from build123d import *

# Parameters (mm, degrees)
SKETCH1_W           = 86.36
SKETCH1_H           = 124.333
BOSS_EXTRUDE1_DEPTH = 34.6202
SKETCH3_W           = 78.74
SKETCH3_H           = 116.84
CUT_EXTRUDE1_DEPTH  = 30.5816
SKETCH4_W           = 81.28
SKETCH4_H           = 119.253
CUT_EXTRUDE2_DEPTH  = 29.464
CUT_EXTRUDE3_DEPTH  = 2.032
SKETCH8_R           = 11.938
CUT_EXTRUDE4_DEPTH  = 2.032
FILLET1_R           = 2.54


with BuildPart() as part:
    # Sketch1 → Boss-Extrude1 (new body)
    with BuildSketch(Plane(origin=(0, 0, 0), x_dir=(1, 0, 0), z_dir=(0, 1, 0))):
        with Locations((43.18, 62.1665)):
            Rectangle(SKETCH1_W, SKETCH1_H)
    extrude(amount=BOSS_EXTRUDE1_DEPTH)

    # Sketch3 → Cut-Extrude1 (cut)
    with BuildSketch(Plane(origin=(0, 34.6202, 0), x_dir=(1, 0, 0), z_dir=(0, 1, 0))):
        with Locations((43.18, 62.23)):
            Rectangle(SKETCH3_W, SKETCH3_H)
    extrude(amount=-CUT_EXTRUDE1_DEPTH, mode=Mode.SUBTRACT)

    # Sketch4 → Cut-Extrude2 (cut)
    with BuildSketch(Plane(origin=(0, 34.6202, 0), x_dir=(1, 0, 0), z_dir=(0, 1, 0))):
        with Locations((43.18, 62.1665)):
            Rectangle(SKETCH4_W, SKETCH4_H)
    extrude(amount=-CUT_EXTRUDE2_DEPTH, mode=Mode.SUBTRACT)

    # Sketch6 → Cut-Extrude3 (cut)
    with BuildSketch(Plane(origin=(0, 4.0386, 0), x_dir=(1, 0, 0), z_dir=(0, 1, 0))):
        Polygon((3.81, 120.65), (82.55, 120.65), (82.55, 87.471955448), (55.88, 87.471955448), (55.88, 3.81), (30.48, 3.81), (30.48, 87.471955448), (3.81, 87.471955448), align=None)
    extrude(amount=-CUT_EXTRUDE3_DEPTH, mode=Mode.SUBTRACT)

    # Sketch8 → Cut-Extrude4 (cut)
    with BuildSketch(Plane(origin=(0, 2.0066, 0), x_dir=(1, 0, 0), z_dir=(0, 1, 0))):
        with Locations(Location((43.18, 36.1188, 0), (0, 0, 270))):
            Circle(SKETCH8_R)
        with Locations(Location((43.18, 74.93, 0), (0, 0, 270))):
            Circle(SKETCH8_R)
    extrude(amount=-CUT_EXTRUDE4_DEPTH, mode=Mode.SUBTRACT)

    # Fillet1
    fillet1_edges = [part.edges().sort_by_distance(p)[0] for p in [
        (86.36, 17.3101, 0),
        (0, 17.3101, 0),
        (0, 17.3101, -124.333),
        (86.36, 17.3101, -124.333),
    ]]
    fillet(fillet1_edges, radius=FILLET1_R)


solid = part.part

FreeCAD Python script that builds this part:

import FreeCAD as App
import Part
import Sketcher
Q = App.Units.Quantity


def edges_at(feature, points):
    """Names of the edges that pass closest to the given points."""
    edges = feature.Shape.Edges
    near = lambda p: min(range(len(edges)), key=lambda i: edges[i].distToShape(Part.Vertex(*p))[0])
    return sorted({f"Edge{near(p) + 1}" for p in points})

doc = App.newDocument("Part")
body = doc.addObject("PartDesign::Body", "Body")

# Sketch on XZ plane
sketch1 = body.newObject("Sketcher::SketchObject", "Sketch")
sketch1.AttachmentSupport = (doc.getObject("XZ_Plane"), [""])
sketch1.MapMode = "FlatFace"
sketch1.addGeometry([
    Part.LineSegment(App.Vector(0, -124, 0), App.Vector(0, 0, 0)),
    Part.LineSegment(App.Vector(0, 0, 0), App.Vector(86, 0, 0)),
    Part.LineSegment(App.Vector(86, 0, 0), App.Vector(86, -124, 0)),
    Part.LineSegment(App.Vector(86, -124, 0), App.Vector(0, -124, 0)),
], False)
sketch1.addConstraint([
    Sketcher.Constraint("Coincident", 0, 2, 1, 1),
    Sketcher.Constraint("Coincident", 1, 2, 2, 1),
    Sketcher.Constraint("Coincident", 2, 2, 3, 1),
    Sketcher.Constraint("Coincident", 3, 2, 0, 1),
    Sketcher.Constraint("Vertical", 0),
    Sketcher.Constraint("Horizontal", 1),
    Sketcher.Constraint("Vertical", 2),
    Sketcher.Constraint("Horizontal", 3),
    Sketcher.Constraint("Coincident", 0, 2, -1, 1),
    Sketcher.Constraint("DistanceX", 1, 1, 1, 2, Q("3.4 in")),
    Sketcher.Constraint("DistanceY", 0, 1, 0, 2, Q("4.895 in")),
])
pad1 = body.newObject("PartDesign::Pad", "Pad")
pad1.Profile = sketch1
pad1.Length = Q("1.363 in")
pad1.Reversed = True

# Sketch on XZ plane
sketch2 = body.newObject("Sketcher::SketchObject", "Sketch001")
sketch2.AttachmentSupport = (doc.getObject("XZ_Plane"), [""])
sketch2.MapMode = "FlatFace"
sketch2.AttachmentOffset = App.Placement(App.Vector(0, 0, -1.363 * 25.4), App.Rotation())
sketch2.addGeometry([
    Part.LineSegment(App.Vector(4, -121, 0), App.Vector(4, -4, 0)),
    Part.LineSegment(App.Vector(4, -4, 0), App.Vector(83, -4, 0)),
    Part.LineSegment(App.Vector(83, -4, 0), App.Vector(83, -121, 0)),
    Part.LineSegment(App.Vector(83, -121, 0), App.Vector(4, -121, 0)),
], False)
sketch2.addConstraint([
    Sketcher.Constraint("Coincident", 0, 2, 1, 1),
    Sketcher.Constraint("Coincident", 1, 2, 2, 1),
    Sketcher.Constraint("Coincident", 2, 2, 3, 1),
    Sketcher.Constraint("Coincident", 3, 2, 0, 1),
    Sketcher.Constraint("Vertical", 0),
    Sketcher.Constraint("Horizontal", 1),
    Sketcher.Constraint("Vertical", 2),
    Sketcher.Constraint("Horizontal", 3),
    Sketcher.Constraint("DistanceX", 1, 1, 1, 2, Q("3.1 in")),
    Sketcher.Constraint("DistanceY", 0, 1, 0, 2, Q("4.6 in")),
    Sketcher.Constraint("DistanceX", -1, 1, 0, 2, Q("0.15 in")),
    Sketcher.Constraint("DistanceY", 0, 2, -1, 1, Q("0.15 in")),
])
pocket1 = body.newObject("PartDesign::Pocket", "Pocket")
pocket1.Profile = sketch2
pocket1.Length = Q("1.204 in")
pocket1.Reversed = True

# Sketch on XZ plane
sketch3 = body.newObject("Sketcher::SketchObject", "Sketch002")
sketch3.AttachmentSupport = (doc.getObject("XZ_Plane"), [""])
sketch3.MapMode = "FlatFace"
sketch3.AttachmentOffset = App.Placement(App.Vector(0, 0, -1.363 * 25.4), App.Rotation())
sketch3.addGeometry([
    Part.LineSegment(App.Vector(3, -122, 0), App.Vector(3, -3, 0)),
    Part.LineSegment(App.Vector(3, -3, 0), App.Vector(84, -3, 0)),
    Part.LineSegment(App.Vector(84, -3, 0), App.Vector(84, -122, 0)),
    Part.LineSegment(App.Vector(84, -122, 0), App.Vector(3, -122, 0)),
], False)
sketch3.addConstraint([
    Sketcher.Constraint("Coincident", 0, 2, 1, 1),
    Sketcher.Constraint("Coincident", 1, 2, 2, 1),
    Sketcher.Constraint("Coincident", 2, 2, 3, 1),
    Sketcher.Constraint("Coincident", 3, 2, 0, 1),
    Sketcher.Constraint("Vertical", 0),
    Sketcher.Constraint("Horizontal", 1),
    Sketcher.Constraint("Vertical", 2),
    Sketcher.Constraint("Horizontal", 3),
    Sketcher.Constraint("DistanceX", 1, 1, 1, 2, Q("3.2 in")),
    Sketcher.Constraint("DistanceX", -1, 1, 0, 2, Q("0.1 in")),
    Sketcher.Constraint("DistanceY", 0, 2, -1, 1, Q("0.1 in")),
    Sketcher.Constraint("DistanceY", 0, 1, 0, 2, Q("4.695 in")),
])
pocket2 = body.newObject("PartDesign::Pocket", "Pocket001")
pocket2.Profile = sketch3
pocket2.Length = Q("1.16 in")
pocket2.Reversed = True

# Sketch on XZ plane
sketch4 = body.newObject("Sketcher::SketchObject", "Sketch003")
sketch4.AttachmentSupport = (doc.getObject("XZ_Plane"), [""])
sketch4.MapMode = "FlatFace"
sketch4.AttachmentOffset = App.Placement(App.Vector(0, 0, -0.159 * 25.4), App.Rotation())
sketch4.addGeometry([
    Part.LineSegment(App.Vector(83, -121, 0), App.Vector(4, -121, 0)),  # 0
    Part.LineSegment(App.Vector(4, -121, 0), App.Vector(4, -87, 0)),  # 1
    Part.LineSegment(App.Vector(4, -87, 0), App.Vector(30, -87, 0)),  # 2
    Part.LineSegment(App.Vector(30, -87, 0), App.Vector(30, -4, 0)),  # 3
    Part.LineSegment(App.Vector(30, -4, 0), App.Vector(56, -4, 0)),  # 4
    Part.LineSegment(App.Vector(56, -4, 0), App.Vector(56, -87, 0)),  # 5
    Part.LineSegment(App.Vector(56, -87, 0), App.Vector(83, -87, 0)),  # 6
    Part.LineSegment(App.Vector(83, -87, 0), App.Vector(83, -121, 0)),  # 7
], False)
sketch4.addConstraint([
    Sketcher.Constraint("Coincident", 0, 2, 1, 1),
    Sketcher.Constraint("Coincident", 1, 2, 2, 1),
    Sketcher.Constraint("Coincident", 2, 2, 3, 1),
    Sketcher.Constraint("Coincident", 3, 2, 4, 1),
    Sketcher.Constraint("Coincident", 4, 2, 5, 1),
    Sketcher.Constraint("Coincident", 5, 2, 6, 1),
    Sketcher.Constraint("Coincident", 6, 2, 7, 1),
    Sketcher.Constraint("Coincident", 7, 2, 0, 1),
    Sketcher.Constraint("Horizontal", 0),
    Sketcher.Constraint("Vertical", 1),
    Sketcher.Constraint("Horizontal", 2),
    Sketcher.Constraint("Vertical", 3),
    Sketcher.Constraint("Horizontal", 4),
    Sketcher.Constraint("Vertical", 5),
    Sketcher.Constraint("Horizontal", 6),
    Sketcher.Constraint("Vertical", 7),
    Sketcher.Constraint("Horizontal", 2, 2, 5, 2),
    Sketcher.Constraint("Equal", 2, 6),
    Sketcher.Constraint("DistanceX", 4, 1, 4, 2, Q("1 in")),
    Sketcher.Constraint("DistanceX", 0, 2, 0, 1, Q("3.1 in")),
    Sketcher.Constraint("DistanceX", -1, 1, 2, 2, Q("1.2 in")),
    Sketcher.Constraint("DistanceY", 0, 2, 3, 2, Q("4.6 in")),
    Sketcher.Constraint("DistanceY", 0, 2, -1, 1, Q("4.75 in")),
    Sketcher.Constraint("DistanceY", 1, 1, 1, 2, Q("33.178045 mm")),
])
pocket3 = body.newObject("PartDesign::Pocket", "Pocket002")
pocket3.Profile = sketch4
pocket3.Length = Q("0.08 in")
pocket3.Reversed = True

# Sketch on XZ plane
sketch5 = body.newObject("Sketcher::SketchObject", "Sketch004")
sketch5.AttachmentSupport = (doc.getObject("XZ_Plane"), [""])
sketch5.MapMode = "FlatFace"
sketch5.AttachmentOffset = App.Placement(App.Vector(0, 0, -0.079 * 25.4), App.Rotation())
sketch5.addGeometry([
    Part.Circle(App.Vector(43, -36, 0), App.Vector(0, 0, 1), 12),
    Part.Circle(App.Vector(43, -75, 0), App.Vector(0, 0, 1), 12),
], False)
sketch5.addConstraint([
    Sketcher.Constraint("Equal", 0, 1),
    Sketcher.Constraint("Vertical", 0, 3, 1, 3),
    Sketcher.Constraint("Diameter", 0, Q("0.94 in")),
    Sketcher.Constraint("DistanceX", -1, 1, 0, 3, Q("1.7 in")),
    Sketcher.Constraint("DistanceY", 1, 3, -1, 1, Q("2.95 in")),
    Sketcher.Constraint("DistanceY", 0, 3, -1, 1, Q("1.422 in")),
])
pocket4 = body.newObject("PartDesign::Pocket", "Pocket003")
pocket4.Profile = sketch5
pocket4.Length = Q("0.08 in")
pocket4.Reversed = True
doc.recompute()

fillet = body.newObject("PartDesign::Fillet", "Fillet")
fillet.Base = (pocket4, edges_at(pocket4, [
    (86.36, 17.31, 0),
    (0, 17.31, 0),
    (0, 17.31, -124.333),
    (86.36, 17.31, -124.333),
]))
fillet.Radius = Q("0.1 in")

doc.recompute()
